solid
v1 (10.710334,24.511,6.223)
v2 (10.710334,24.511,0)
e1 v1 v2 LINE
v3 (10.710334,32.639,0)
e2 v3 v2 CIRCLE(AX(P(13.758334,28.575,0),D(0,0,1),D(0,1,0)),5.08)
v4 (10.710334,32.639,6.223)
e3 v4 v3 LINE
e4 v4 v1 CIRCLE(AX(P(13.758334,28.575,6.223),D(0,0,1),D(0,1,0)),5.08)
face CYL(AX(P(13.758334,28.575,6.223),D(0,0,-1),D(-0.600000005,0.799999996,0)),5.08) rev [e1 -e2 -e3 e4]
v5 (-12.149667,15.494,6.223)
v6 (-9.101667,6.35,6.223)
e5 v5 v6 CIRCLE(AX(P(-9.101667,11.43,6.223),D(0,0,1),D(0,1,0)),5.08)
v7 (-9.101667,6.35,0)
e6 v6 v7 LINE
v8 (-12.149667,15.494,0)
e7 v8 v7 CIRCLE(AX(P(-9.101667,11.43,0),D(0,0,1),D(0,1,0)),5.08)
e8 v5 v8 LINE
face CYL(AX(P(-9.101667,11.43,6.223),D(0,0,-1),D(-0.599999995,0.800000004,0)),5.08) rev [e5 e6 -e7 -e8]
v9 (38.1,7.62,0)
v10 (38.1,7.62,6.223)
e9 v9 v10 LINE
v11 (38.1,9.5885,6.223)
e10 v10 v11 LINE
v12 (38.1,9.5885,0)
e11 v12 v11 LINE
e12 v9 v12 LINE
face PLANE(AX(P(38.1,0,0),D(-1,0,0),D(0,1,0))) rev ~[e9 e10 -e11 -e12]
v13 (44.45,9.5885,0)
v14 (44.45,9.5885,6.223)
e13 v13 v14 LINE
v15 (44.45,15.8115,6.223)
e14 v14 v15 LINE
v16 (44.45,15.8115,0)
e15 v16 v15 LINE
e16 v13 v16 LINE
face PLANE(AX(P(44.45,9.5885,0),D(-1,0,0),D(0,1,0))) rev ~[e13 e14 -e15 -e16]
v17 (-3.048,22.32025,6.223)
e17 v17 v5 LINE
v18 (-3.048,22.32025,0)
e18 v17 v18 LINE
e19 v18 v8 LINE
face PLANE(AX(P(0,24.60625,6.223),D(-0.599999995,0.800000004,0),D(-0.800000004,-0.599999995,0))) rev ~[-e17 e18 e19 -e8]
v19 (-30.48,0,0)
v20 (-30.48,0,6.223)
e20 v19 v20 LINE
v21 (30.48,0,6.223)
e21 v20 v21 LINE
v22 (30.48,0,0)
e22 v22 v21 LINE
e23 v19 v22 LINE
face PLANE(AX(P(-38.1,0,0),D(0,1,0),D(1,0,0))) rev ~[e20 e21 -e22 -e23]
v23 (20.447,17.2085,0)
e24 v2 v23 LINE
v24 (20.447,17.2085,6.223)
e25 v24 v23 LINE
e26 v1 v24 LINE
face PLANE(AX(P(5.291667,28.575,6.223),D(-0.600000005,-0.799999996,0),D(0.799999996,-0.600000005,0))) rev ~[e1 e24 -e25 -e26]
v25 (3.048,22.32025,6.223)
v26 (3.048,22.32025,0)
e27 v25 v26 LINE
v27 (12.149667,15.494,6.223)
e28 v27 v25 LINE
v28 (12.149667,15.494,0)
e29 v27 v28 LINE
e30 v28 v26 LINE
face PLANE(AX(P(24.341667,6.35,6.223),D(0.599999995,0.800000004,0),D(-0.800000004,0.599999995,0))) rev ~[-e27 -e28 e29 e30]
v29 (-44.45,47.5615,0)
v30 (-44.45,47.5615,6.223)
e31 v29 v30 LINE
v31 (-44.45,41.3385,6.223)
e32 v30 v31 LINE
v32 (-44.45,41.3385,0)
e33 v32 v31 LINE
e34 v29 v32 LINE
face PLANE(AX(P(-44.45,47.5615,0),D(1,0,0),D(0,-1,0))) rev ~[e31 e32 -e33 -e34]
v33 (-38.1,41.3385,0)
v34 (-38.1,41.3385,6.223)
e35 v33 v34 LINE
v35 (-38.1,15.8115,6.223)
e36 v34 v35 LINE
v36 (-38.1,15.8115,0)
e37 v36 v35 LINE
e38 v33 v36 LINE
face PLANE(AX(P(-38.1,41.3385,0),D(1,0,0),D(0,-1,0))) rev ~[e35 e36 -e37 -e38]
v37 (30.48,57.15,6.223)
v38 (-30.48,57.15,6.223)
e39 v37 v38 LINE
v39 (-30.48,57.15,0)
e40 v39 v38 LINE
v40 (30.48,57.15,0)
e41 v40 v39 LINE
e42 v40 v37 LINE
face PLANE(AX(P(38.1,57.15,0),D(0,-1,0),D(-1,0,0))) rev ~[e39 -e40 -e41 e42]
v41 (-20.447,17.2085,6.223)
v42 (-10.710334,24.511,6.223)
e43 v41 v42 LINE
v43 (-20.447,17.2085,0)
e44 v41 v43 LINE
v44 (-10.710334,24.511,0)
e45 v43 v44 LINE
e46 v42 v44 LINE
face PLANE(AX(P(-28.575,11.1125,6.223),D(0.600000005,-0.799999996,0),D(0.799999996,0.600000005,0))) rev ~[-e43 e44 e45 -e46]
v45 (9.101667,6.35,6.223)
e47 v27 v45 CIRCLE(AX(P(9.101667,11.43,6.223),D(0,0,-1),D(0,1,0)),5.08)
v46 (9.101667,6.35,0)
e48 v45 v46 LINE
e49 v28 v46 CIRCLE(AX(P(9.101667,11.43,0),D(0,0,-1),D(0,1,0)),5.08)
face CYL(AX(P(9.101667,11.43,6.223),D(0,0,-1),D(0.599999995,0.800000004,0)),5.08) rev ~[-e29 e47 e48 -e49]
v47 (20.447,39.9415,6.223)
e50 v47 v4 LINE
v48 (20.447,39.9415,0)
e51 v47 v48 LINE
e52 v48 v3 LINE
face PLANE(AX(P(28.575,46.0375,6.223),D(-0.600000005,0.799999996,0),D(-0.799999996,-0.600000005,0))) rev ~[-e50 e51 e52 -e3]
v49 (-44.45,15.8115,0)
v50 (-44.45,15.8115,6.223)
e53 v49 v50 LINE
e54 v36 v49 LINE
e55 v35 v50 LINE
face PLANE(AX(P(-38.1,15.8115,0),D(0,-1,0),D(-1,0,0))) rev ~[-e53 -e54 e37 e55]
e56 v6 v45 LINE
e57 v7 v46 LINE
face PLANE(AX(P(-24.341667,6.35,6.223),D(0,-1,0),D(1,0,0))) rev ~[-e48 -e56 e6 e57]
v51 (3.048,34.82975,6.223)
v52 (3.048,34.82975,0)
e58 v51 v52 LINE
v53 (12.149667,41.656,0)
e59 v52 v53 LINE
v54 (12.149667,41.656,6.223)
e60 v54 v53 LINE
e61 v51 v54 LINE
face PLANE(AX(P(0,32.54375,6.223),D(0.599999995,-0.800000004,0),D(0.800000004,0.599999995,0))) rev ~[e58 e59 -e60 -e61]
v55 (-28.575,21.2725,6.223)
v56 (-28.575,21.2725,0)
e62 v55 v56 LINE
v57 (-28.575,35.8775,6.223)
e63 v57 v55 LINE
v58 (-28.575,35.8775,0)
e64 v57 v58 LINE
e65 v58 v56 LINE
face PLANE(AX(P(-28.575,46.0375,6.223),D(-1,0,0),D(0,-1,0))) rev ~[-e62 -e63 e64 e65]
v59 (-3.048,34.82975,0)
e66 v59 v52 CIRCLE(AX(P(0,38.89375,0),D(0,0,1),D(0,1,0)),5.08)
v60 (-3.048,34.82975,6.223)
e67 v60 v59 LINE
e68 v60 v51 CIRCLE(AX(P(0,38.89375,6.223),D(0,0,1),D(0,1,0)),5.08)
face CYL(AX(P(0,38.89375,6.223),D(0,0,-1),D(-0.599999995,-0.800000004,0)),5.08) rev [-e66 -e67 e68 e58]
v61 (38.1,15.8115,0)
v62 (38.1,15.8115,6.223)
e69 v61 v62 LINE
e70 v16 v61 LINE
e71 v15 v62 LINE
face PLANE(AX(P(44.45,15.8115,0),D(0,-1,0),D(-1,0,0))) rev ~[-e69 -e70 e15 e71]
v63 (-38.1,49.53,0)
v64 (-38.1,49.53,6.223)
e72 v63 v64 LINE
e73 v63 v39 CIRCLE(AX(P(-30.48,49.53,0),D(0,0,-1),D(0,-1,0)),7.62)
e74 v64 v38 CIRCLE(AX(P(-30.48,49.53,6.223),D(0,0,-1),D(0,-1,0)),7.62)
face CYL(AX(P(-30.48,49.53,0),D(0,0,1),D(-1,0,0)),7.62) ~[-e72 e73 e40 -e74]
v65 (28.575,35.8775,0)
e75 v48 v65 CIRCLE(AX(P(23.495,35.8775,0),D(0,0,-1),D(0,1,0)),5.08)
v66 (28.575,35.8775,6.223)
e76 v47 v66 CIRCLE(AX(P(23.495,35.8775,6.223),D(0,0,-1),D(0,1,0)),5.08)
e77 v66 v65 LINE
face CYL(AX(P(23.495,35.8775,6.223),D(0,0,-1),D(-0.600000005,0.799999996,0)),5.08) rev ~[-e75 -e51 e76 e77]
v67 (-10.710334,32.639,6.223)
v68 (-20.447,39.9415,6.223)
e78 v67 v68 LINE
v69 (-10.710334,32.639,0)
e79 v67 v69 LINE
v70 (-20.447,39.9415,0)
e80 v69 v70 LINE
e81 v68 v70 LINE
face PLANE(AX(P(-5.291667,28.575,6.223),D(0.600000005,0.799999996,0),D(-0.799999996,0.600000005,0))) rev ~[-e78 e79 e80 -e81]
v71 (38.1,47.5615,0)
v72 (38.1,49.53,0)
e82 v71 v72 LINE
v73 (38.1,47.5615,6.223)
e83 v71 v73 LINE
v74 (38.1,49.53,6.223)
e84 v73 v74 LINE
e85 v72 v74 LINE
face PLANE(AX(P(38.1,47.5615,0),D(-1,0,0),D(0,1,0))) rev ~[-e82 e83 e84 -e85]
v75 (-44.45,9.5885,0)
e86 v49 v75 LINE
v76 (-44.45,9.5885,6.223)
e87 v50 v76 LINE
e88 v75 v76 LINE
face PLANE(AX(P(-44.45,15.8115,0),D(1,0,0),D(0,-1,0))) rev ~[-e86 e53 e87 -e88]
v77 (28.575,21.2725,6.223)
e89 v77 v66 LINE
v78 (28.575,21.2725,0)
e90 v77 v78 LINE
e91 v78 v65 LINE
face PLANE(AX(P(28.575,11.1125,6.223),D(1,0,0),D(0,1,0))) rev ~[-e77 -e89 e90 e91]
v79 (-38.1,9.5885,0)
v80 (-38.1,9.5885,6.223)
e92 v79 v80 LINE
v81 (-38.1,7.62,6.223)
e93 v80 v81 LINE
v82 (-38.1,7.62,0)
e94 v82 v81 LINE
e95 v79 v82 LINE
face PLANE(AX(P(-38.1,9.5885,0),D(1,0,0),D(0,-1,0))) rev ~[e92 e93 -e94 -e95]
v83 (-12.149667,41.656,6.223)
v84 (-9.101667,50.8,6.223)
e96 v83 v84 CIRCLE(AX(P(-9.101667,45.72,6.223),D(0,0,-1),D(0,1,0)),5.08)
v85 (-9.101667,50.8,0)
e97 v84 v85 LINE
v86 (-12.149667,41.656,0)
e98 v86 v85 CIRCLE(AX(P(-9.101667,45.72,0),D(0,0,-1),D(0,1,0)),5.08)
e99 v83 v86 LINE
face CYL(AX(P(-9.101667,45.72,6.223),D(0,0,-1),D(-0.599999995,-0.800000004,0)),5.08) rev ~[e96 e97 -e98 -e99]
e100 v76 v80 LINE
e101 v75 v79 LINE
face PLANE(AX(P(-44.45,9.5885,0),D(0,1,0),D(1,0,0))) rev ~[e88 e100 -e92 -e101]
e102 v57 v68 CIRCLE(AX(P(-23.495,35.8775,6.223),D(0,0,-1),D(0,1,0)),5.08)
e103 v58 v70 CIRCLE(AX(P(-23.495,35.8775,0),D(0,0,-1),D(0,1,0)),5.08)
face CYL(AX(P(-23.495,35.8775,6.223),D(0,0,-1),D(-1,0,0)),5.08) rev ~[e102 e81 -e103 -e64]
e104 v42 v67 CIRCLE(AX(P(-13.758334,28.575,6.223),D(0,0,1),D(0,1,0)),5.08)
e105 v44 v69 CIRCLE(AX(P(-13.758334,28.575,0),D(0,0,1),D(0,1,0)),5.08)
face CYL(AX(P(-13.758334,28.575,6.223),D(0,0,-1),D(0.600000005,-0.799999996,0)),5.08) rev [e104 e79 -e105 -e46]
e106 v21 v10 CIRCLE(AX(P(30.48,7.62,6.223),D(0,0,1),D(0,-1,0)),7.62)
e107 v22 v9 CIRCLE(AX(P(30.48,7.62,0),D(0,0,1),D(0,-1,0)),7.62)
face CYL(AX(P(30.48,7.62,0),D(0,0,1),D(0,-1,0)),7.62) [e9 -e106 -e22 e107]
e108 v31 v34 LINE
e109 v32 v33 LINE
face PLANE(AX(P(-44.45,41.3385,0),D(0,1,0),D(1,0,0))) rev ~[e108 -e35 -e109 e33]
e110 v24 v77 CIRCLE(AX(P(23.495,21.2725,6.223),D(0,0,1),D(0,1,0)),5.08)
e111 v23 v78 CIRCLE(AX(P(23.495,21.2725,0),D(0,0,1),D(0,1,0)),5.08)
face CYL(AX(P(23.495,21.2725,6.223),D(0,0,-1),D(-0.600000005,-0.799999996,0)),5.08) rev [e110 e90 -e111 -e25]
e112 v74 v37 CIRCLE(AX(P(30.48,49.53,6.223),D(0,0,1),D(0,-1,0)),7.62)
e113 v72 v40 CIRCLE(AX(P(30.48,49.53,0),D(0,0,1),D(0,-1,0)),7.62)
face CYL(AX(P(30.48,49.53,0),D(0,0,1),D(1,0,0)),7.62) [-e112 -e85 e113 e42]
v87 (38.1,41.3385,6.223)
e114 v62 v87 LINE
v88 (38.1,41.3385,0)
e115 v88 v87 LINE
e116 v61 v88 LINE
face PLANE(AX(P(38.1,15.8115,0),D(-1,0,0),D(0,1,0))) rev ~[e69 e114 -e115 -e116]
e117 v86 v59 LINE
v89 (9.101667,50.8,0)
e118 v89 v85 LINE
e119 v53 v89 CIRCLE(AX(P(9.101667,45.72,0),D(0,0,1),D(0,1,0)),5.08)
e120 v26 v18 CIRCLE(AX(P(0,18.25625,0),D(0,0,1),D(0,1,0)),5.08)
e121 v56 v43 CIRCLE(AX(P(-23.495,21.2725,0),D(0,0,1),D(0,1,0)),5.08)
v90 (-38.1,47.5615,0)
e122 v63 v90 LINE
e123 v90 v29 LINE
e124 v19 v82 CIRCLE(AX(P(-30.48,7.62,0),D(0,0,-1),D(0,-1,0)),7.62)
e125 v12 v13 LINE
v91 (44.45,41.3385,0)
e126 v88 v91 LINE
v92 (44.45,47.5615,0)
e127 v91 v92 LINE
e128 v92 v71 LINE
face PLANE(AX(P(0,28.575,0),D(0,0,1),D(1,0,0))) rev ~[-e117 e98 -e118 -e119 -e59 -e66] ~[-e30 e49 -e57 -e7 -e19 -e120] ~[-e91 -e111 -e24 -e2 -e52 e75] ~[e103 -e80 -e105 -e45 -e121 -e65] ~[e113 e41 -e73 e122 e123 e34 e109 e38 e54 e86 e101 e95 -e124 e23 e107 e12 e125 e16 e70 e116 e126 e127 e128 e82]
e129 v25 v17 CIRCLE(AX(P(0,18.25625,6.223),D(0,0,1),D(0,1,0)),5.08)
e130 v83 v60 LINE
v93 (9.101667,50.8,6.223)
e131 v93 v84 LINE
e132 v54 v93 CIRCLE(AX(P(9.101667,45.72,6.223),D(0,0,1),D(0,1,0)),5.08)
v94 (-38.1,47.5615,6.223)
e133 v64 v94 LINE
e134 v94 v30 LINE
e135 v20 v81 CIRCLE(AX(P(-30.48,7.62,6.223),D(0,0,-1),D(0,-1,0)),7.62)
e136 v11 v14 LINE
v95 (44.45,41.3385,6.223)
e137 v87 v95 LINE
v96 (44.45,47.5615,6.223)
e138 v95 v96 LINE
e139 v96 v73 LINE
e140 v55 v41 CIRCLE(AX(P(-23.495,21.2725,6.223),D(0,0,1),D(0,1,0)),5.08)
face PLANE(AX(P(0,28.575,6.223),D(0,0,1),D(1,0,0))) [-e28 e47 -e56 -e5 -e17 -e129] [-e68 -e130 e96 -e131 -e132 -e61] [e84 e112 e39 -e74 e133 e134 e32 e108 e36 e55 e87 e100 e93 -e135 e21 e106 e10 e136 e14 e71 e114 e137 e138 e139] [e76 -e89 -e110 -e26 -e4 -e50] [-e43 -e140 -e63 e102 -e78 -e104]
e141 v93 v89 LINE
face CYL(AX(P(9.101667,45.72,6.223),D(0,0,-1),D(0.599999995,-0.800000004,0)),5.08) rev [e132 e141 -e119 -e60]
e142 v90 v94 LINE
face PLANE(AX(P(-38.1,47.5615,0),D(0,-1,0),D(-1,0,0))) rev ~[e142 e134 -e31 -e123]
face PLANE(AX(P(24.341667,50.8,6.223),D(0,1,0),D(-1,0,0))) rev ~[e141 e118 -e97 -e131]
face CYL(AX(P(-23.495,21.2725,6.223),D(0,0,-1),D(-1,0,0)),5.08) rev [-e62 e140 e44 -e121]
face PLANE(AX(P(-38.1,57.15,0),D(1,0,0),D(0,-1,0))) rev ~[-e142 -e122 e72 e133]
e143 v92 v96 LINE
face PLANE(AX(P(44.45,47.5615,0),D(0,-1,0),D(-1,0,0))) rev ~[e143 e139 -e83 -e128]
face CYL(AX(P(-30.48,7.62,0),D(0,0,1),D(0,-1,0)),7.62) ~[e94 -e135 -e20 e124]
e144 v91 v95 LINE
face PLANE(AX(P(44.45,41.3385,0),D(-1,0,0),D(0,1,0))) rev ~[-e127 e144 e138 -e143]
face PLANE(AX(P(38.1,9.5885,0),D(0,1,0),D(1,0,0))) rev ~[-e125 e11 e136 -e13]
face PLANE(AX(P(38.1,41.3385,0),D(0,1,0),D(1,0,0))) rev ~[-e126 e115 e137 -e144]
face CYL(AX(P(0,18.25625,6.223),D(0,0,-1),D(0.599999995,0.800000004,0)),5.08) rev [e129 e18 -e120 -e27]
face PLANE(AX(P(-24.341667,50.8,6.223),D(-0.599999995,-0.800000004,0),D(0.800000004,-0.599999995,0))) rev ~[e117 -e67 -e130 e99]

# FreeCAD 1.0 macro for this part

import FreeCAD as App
import Part
import Sketcher
Q = App.Units.Quantity


def edges_at(feature, points):
    """Names of the edges that pass closest to the given points."""
    edges = feature.Shape.Edges
    near = lambda p: min(range(len(edges)), key=lambda i: edges[i].distToShape(Part.Vertex(*p))[0])
    return sorted({f"Edge{near(p) + 1}" for p in points})


def add_polygon(sketch, points):
    """Adds a closed chain of lines whose ends are joined by coincident constraints."""
    first, n = sketch.GeometryCount, len(points)
    for a, b in zip(points, points[1:] + points[:1]):
        sketch.addGeometry(Part.LineSegment(App.Vector(*a, 0), App.Vector(*b, 0)), False)
    for i in range(n):
        sketch.addConstraint(Sketcher.Constraint("Coincident", first + i, 2, first + (i + 1) % n, 1))

doc = App.newDocument("Part")
params = doc.addObject("Spreadsheet::Sheet", "Params")
for row, (alias, value) in enumerate([
    ("sketch1_width", "3 in"),
    ("sketch1_width2", "0.25 in"),
    ("sketch1_height", "0.245 in"),
    ("sketch1_height2", "1.005 in"),
    ("pad1_length", "0.245 in"),
    ("sketch2_height", "1.375 in"),
    ("pocket1_length", "1 in"),
    ("fillet_radius", "0.2 in"),
    ("fillet2_radius", "0.3 in"),
], start=1):
    params.set(f"A{row}", alias)
    params.set(f"B{row}", "=" + value)
    params.setAlias(f"B{row}", alias)

body = doc.addObject("PartDesign::Body", "Body")

# Sketch on XY plane
sketch1 = doc.addObject("Sketcher::SketchObject", "Sketch")
body.addObject(sketch1)
sketch1.AttachmentSupport = (doc.XY_Plane, [""])
sketch1.MapMode = "FlatFace"
add_polygon(sketch1, [(-38, 0), (38, 0), (38, 10), (44, 10), (44, 16), (38, 16), (38, 41), (44, 41), (44, 48), (38, 48), (38, 57), (-38, 57), (-38, 48), (-44, 48), (-44, 41), (-38, 41), (-38, 16), (-44, 16), (-44, 10), (-38, 10)])  # lines 0-19
sketch1.addConstraint(Sketcher.Constraint("Horizontal", 0))
sketch1.addConstraint(Sketcher.Constraint("Vertical", 1))
sketch1.addConstraint(Sketcher.Constraint("Horizontal", 2))
sketch1.addConstraint(Sketcher.Constraint("Vertical", 3))
sketch1.addConstraint(Sketcher.Constraint("Horizontal", 4))
sketch1.addConstraint(Sketcher.Constraint("Vertical", 5))
sketch1.addConstraint(Sketcher.Constraint("Horizontal", 6))
sketch1.addConstraint(Sketcher.Constraint("Vertical", 7))
sketch1.addConstraint(Sketcher.Constraint("Horizontal", 8))
sketch1.addConstraint(Sketcher.Constraint("Vertical", 9))
sketch1.addConstraint(Sketcher.Constraint("Horizontal", 10))
sketch1.addConstraint(Sketcher.Constraint("Vertical", 11))
sketch1.addConstraint(Sketcher.Constraint("Horizontal", 12))
sketch1.addConstraint(Sketcher.Constraint("Vertical", 13))
sketch1.addConstraint(Sketcher.Constraint("Horizontal", 14))
sketch1.addConstraint(Sketcher.Constraint("Vertical", 15))
sketch1.addConstraint(Sketcher.Constraint("Horizontal", 16))
sketch1.addConstraint(Sketcher.Constraint("Vertical", 17))
sketch1.addConstraint(Sketcher.Constraint("Horizontal", 18))
sketch1.addConstraint(Sketcher.Constraint("Vertical", 19))
sketch1.addConstraint(Sketcher.Constraint("Symmetric", 0, 2, 19, 2, -1, 1))
sketch1.addConstraint(Sketcher.Constraint("Symmetric", 8, 2, 11, 2, -2))
sketch1.addConstraint(Sketcher.Constraint("Symmetric", 6, 2, 13, 2, -2))
sketch1.addConstraint(Sketcher.Constraint("Symmetric", 4, 2, 15, 2, -2))
sketch1.addConstraint(Sketcher.Constraint("Symmetric", 2, 2, 17, 2, -2))
sketch1.addConstraint(Sketcher.Constraint("Vertical", 1, 2, 4, 2))
sketch1.addConstraint(Sketcher.Constraint("Vertical", 3, 2, 6, 2))
sketch1.addConstraint(Sketcher.Constraint("Vertical", 5, 2, 8, 2))
sketch1.addConstraint(Sketcher.Constraint("Equal", 3, 7))
sketch1.addConstraint(Sketcher.Constraint("Equal", 1, 9))
sketch1.addConstraint(Sketcher.Constraint("DistanceX", 0, 1, 0, 2, Q("3 in")))
sketch1.addConstraint(Sketcher.Constraint("DistanceX", 2, 1, 2, 2, Q("0.25 in")))
sketch1.addConstraint(Sketcher.Constraint("DistanceY", 3, 1, 3, 2, Q("0.245 in")))
sketch1.addConstraint(Sketcher.Constraint("DistanceY", 5, 1, 5, 2, Q("1.005 in")))
sketch1.addConstraint(Sketcher.Constraint("DistanceY", -1, 1, 9, 2, Q("2.25 in")))
sketch1.setExpression("Constraints[50]", "Params.sketch1_width")
sketch1.setExpression("Constraints[51]", "Params.sketch1_width2")
sketch1.setExpression("Constraints[52]", "Params.sketch1_height")
sketch1.setExpression("Constraints[53]", "Params.sketch1_height2")
pad1 = doc.addObject("PartDesign::Pad", "Pad")
body.addObject(pad1)
pad1.Profile = sketch1
pad1.setExpression("Length", "Params.pad1_length")

# Sketch on XY plane
sketch2 = doc.addObject("Sketcher::SketchObject", "Sketch001")
body.addObject(sketch2)
sketch2.AttachmentSupport = (doc.XY_Plane, [""])
sketch2.MapMode = "FlatFace"
sketch2.AttachmentOffset = App.Placement(App.Vector(0, 0, 0.245 * 25.4), App.Rotation())
add_polygon(sketch2, [(-29, 46), (-29, 11), (-5, 29)])  # lines 0-2
add_polygon(sketch2, [(-24, 51), (0, 33), (24, 51)])  # lines 3-5
add_polygon(sketch2, [(29, 46), (5, 29), (29, 11)])  # lines 6-8
add_polygon(sketch2, [(24, 6), (0, 25), (-24, 6)])  # lines 9-11
sketch2.addConstraint(Sketcher.Constraint("Vertical", 0))
sketch2.addConstraint(Sketcher.Constraint("Horizontal", 5))
sketch2.addConstraint(Sketcher.Constraint("Vertical", 8))
sketch2.addConstraint(Sketcher.Constraint("Horizontal", 11))
sketch2.addConstraint(Sketcher.Constraint("Symmetric", 1, 2, 6, 2, -2))
sketch2.addConstraint(Sketcher.Constraint("Symmetric", 0, 2, 7, 2, -2))
sketch2.addConstraint(Sketcher.Constraint("PointOnObject", 3, 2, -2))
sketch2.addConstraint(Sketcher.Constraint("PointOnObject", 9, 2, -2))
sketch2.addConstraint(Sketcher.Constraint("Parallel", 2, 3))
sketch2.addConstraint(Sketcher.Constraint("Parallel", 1, 4))
sketch2.addConstraint(Sketcher.Constraint("Parallel", 4, 6))
sketch2.addConstraint(Sketcher.Constraint("Parallel", 3, 7))
sketch2.addConstraint(Sketcher.Constraint("Parallel", 7, 9))
sketch2.addConstraint(Sketcher.Constraint("Parallel", 6, 10))
sketch2.addConstraint(Sketcher.Constraint("Vertical", 5, 2, 10, 2))
sketch2.addConstraint(Sketcher.Constraint("DistanceY", -1, 1, 4, 2, Q("2 in")))
sketch2.addConstraint(Sketcher.Constraint("DistanceY", 0, 2, 0, 1, Q("1.375 in")))
sketch2.addConstraint(Sketcher.Constraint("DistanceY", -1, 1, 10, 2, Q("0.25 in")))
sketch2.addConstraint(Sketcher.Constraint("DistanceX", 5, 2, 1, 2, Q("0.75 in")))
sketch2.addConstraint(Sketcher.Constraint("DistanceX", 0, 2, 7, 2, Q("2.25 in")))
sketch2.addConstraint(Sketcher.Constraint("DistanceY", -1, 1, 0, 2, Q("0.4375 in")))
sketch2.addConstraint(Sketcher.Constraint("DistanceY", -1, 1, 3, 2, Q("1.28125 in")))
sketch2.setExpression("Constraints[28]", "Params.sketch2_height")
pocket1 = doc.addObject("PartDesign::Pocket", "Pocket")
body.addObject(pocket1)
pocket1.Profile = sketch2
pocket1.setExpression("Length", "Params.pocket1_length")
doc.recompute()

fillet = doc.addObject("PartDesign::Fillet", "Fillet")
body.addObject(fillet)
fillet.Base = (pocket1, edges_at(pocket1, [
    (-28.575, 11.113, 3.111),
    (-28.575, 46.038, 3.111),
    (-5.292, 28.575, 3.111),
    (24.342, 6.35, 3.111),
    (0, 24.606, 3.111),
    (-24.342, 6.35, 3.111),
    (28.575, 11.113, 3.111),
    (28.575, 46.038, 3.111),
    (5.292, 28.575, 3.111),
    (0, 32.544, 3.111),
    (24.342, 50.8, 3.111),
    (-24.342, 50.8, 3.111),
]))
fillet.setExpression("Radius", "Params.fillet_radius")
doc.recompute()

fillet2 = doc.addObject("PartDesign::Fillet", "Fillet001")
body.addObject(fillet2)
fillet2.Base = (fillet, edges_at(fillet, [
    (-38.1, 57.15, 3.111),
    (38.1, 57.15, 3.111),
    (38.1, 0, 3.111),
    (-38.1, 0, 3.111),
]))
fillet2.setExpression("Radius", "Params.fillet2_radius")

doc.recompute()
